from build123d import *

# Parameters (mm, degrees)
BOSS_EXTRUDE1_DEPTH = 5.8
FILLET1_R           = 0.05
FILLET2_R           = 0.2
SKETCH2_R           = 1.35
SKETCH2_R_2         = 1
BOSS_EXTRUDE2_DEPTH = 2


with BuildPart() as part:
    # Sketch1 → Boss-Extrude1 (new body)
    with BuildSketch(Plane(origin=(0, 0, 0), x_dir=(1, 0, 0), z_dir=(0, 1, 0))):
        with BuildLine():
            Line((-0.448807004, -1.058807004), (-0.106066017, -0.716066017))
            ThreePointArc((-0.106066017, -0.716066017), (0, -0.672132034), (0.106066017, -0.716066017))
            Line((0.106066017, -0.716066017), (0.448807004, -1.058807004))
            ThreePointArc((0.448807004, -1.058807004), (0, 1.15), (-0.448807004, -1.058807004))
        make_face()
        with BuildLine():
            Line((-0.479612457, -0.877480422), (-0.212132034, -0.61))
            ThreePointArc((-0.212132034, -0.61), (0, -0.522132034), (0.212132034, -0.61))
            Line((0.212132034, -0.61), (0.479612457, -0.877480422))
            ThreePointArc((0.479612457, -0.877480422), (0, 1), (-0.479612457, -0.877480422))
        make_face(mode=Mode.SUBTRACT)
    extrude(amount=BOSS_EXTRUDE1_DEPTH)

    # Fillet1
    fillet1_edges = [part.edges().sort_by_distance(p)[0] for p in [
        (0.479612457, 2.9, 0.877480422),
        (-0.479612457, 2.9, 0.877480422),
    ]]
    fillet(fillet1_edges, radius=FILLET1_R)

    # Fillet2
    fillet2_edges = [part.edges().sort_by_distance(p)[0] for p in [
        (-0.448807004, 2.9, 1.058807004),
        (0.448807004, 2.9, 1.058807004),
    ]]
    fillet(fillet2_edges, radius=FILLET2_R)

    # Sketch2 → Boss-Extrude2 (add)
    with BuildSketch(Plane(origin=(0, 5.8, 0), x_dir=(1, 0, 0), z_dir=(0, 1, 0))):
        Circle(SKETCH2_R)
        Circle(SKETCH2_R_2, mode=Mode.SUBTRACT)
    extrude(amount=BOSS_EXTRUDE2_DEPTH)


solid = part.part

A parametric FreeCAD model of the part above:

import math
import FreeCAD as App
import Part
import Sketcher
Q = App.Units.Quantity


def edges_at(feature, points):
    """Names of the edges that pass closest to the given points."""
    edges = feature.Shape.Edges
    near = lambda p: min(range(len(edges)), key=lambda i: edges[i].distToShape(Part.Vertex(*p))[0])
    return sorted({f"Edge{near(p) + 1}" for p in points})

doc = App.newDocument("Part")
body = doc.addObject("PartDesign::Body", "Body")

# Sketch on XZ plane
sketch1 = body.newObject("Sketcher::SketchObject", "Sketch")
sketch1.AttachmentSupport = (doc.getObject("XZ_Plane"), [""])
sketch1.MapMode = "FlatFace"
sketch1.addGeometry([
    Part.LineSegment(App.Vector(-0.45, 1.06, 0), App.Vector(-0.11, 0.72, 0)),  # 0
    Part.ArcOfCircle(Part.Circle(App.Vector(0, 0.82, 0), App.Vector(0, 0, 1), 0.15), math.radians(-135), math.radians(-45)),  # 1
    Part.LineSegment(App.Vector(0.11, 0.72, 0), App.Vector(0.45, 1.06, 0)),  # 2
    Part.ArcOfCircle(Part.Circle(App.Vector(0, 0, 0), App.Vector(0, 0, 1), 1.15), math.radians(113), math.radians(427)),  # 3
    Part.LineSegment(App.Vector(-0.21, 0.61, 0), App.Vector(-0.48, 0.88, 0)),  # 4
    Part.ArcOfCircle(Part.Circle(App.Vector(0, 0, 0), App.Vector(0, 0, 1), 1), math.radians(119), math.radians(421)),  # 5
    Part.LineSegment(App.Vector(0.48, 0.88, 0), App.Vector(0.21, 0.61, 0)),  # 6
    Part.ArcOfCircle(Part.Circle(App.Vector(0, 0.82, 0), App.Vector(0, 0, 1), 0.3), math.radians(-135), math.radians(-45)),  # 7
], False)
sketch1.addConstraint([
    Sketcher.Constraint("Tangent", 0, 2, 1, 1),
    Sketcher.Constraint("Tangent", 1, 2, 2, 1),
    Sketcher.Constraint("Coincident", 2, 2, 3, 2),
    Sketcher.Constraint("Coincident", 3, 1, 0, 1),
    Sketcher.Constraint("Coincident", 4, 2, 5, 1),
    Sketcher.Constraint("Coincident", 5, 2, 6, 1),
    Sketcher.Constraint("Tangent", 6, 2, 7, 2),
    Sketcher.Constraint("Tangent", 7, 1, 4, 1),
    Sketcher.Constraint("Coincident", 3, 3, -1, 1),
    Sketcher.Constraint("Coincident", 5, 3, -1, 1),
    Sketcher.Constraint("Coincident", 7, 3, 1, 3),
    Sketcher.Constraint("Symmetric", 0, 2, 1, 2, -2),
    Sketcher.Constraint("Perpendicular", 0, 2),
    Sketcher.Constraint("Perpendicular", 2, 4),
    Sketcher.Constraint("Perpendicular", 4, 6),
    Sketcher.Constraint("Radius", 5, Q("1 mm")),
    Sketcher.Constraint("Radius", 7, Q("0.3 mm")),
    Sketcher.Constraint("Radius", 1, Q("0.15 mm")),
    Sketcher.Constraint("Radius", 3, Q("1.15 mm")),
    Sketcher.Constraint("DistanceY", -1, 1, 6, 2, Q("0.61 mm")),
])
pad1 = body.newObject("PartDesign::Pad", "Pad")
pad1.Profile = sketch1
pad1.Length = 5.8
pad1.Reversed = True
doc.recompute()

fillet = body.newObject("PartDesign::Fillet", "Fillet")
fillet.Base = (pad1, edges_at(pad1, [(0.48, 2.9, 0.877), (-0.48, 2.9, 0.877)]))
fillet.Radius = 0.05
doc.recompute()

fillet2 = body.newObject("PartDesign::Fillet", "Fillet001")
fillet2.Base = (fillet, edges_at(fillet, [(-0.449, 2.9, 1.059), (0.449, 2.9, 1.059)]))
fillet2.Radius = 0.2

# Sketch on XZ plane
sketch2 = body.newObject("Sketcher::SketchObject", "Sketch001")
sketch2.AttachmentSupport = (doc.getObject("XZ_Plane"), [""])
sketch2.MapMode = "FlatFace"
sketch2.AttachmentOffset = App.Placement(App.Vector(0, 0, -5.8), App.Rotation())
sketch2.addGeometry([
    Part.Circle(App.Vector(0, 0, 0), App.Vector(0, 0, 1), 1.4),
    Part.Circle(App.Vector(0, 0, 0), App.Vector(0, 0, 1), 1),
], False)
sketch2.addConstraint([
    Sketcher.Constraint("Coincident", 0, 3, -1, 1),
    Sketcher.Constraint("Coincident", 1, 3, -1, 1),
    Sketcher.Constraint("Diameter", 1, Q("2 mm")),
    Sketcher.Constraint("Diameter", 0, Q("2.7 mm")),
])
pad2 = body.newObject("PartDesign::Pad", "Pad001")
pad2.Profile = sketch2
pad2.Length = 2
pad2.Reversed = True

doc.recompute()
